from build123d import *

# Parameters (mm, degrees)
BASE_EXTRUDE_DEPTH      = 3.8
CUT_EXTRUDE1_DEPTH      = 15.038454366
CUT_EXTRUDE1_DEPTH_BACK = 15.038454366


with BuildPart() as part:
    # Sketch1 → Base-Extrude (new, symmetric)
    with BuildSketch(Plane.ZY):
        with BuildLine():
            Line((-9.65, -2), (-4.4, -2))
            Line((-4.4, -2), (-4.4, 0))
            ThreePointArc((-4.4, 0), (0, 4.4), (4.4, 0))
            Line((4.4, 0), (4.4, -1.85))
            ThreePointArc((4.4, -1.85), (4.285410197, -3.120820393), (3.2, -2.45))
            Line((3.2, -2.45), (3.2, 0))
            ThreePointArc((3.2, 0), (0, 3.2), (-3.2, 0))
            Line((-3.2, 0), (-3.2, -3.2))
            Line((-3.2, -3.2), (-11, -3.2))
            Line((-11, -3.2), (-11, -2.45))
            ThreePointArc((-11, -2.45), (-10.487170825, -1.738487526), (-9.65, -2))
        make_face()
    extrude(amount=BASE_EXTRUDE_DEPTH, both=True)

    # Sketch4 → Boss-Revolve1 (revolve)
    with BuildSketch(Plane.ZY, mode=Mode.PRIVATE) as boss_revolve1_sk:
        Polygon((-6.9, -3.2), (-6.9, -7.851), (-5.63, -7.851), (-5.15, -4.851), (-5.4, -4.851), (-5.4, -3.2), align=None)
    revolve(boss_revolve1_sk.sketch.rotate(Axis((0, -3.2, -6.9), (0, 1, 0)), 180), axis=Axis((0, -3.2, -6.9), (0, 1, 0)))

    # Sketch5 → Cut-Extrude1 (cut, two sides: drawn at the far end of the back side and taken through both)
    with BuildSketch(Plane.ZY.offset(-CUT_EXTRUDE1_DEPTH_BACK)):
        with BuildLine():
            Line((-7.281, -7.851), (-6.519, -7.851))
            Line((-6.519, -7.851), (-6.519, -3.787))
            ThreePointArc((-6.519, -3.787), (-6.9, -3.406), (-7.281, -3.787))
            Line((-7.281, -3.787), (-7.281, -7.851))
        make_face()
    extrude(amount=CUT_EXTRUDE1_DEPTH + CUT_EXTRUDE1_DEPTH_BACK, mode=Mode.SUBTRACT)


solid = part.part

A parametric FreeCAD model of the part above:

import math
import FreeCAD as App
import Part
import Sketcher
Q = App.Units.Quantity


def add_polygon(sketch, points):
    """Adds a closed chain of lines whose ends are joined by coincident constraints."""
    first, n = sketch.GeometryCount, len(points)
    for a, b in zip(points, points[1:] + points[:1]):
        sketch.addGeometry(Part.LineSegment(App.Vector(*a, 0), App.Vector(*b, 0)), False)
    for i in range(n):
        sketch.addConstraint(Sketcher.Constraint("Coincident", first + i, 2, first + (i + 1) % n, 1))

doc = App.newDocument("Part")
body = doc.addObject("PartDesign::Body", "Body")

# Sketch on YZ plane
sketch1 = body.newObject("Sketcher::SketchObject", "Sketch")
sketch1.AttachmentSupport = (doc.getObject("YZ_Plane"), [""])
sketch1.MapMode = "FlatFace"
sketch1.addGeometry([
    Part.LineSegment(App.Vector(-2, -4.4, 0), App.Vector(-2, -9.65, 0)),  # 0
    Part.ArcOfCircle(Part.Circle(App.Vector(-2.45, -10.25, 0), App.Vector(0, 0, 1), 0.75), math.radians(-90), math.radians(53.130102)),  # 1
    Part.LineSegment(App.Vector(-2.45, -11, 0), App.Vector(-3.2, -11, 0)),  # 2
    Part.LineSegment(App.Vector(-3.2, -11, 0), App.Vector(-3.2, -3.2, 0)),  # 3
    Part.LineSegment(App.Vector(-3.2, -3.2, 0), App.Vector(0, -3.2, 0)),  # 4
    Part.ArcOfCircle(Part.Circle(App.Vector(0, 0, 0), App.Vector(0, 0, 1), 3.2), math.radians(-90), math.radians(90)),  # 5
    Part.LineSegment(App.Vector(0, 3.2, 0), App.Vector(-2.45, 3.2, 0)),  # 6
    Part.ArcOfCircle(Part.Circle(App.Vector(-2.45, 3.95, 0), App.Vector(0, 0, 1), 0.75), math.radians(36.869898), math.radians(270)),  # 7
    Part.LineSegment(App.Vector(-1.85, 4.4, 0), App.Vector(0, 4.4, 0)),  # 8
    Part.ArcOfCircle(Part.Circle(App.Vector(0, 0, 0), App.Vector(0, 0, 1), 4.4), math.radians(-90), math.radians(90)),  # 9
    Part.LineSegment(App.Vector(0, -4.4, 0), App.Vector(-2, -4.4, 0)),  # 10
], False)
sketch1.addConstraint([
    Sketcher.Constraint("Coincident", 0, 2, 1, 2),
    Sketcher.Constraint("Tangent", 1, 1, 2, 1),
    Sketcher.Constraint("Coincident", 2, 2, 3, 1),
    Sketcher.Constraint("Coincident", 3, 2, 4, 1),
    Sketcher.Constraint("Tangent", 4, 2, 5, 1),
    Sketcher.Constraint("Tangent", 5, 2, 6, 1),
    Sketcher.Constraint("Tangent", 6, 2, 7, 2),
    Sketcher.Constraint("Coincident", 7, 1, 8, 1),
    Sketcher.Constraint("Tangent", 8, 2, 9, 2),
    Sketcher.Constraint("Tangent", 9, 1, 10, 1),
    Sketcher.Constraint("Coincident", 10, 2, 0, 1),
    Sketcher.Constraint("Vertical", 0),
    Sketcher.Constraint("Horizontal", 2),
    Sketcher.Constraint("Vertical", 3),
    Sketcher.Constraint("Horizontal", 4),
    Sketcher.Constraint("Horizontal", 6),
    Sketcher.Constraint("Horizontal", 8),
    Sketcher.Constraint("Horizontal", 10),
    Sketcher.Constraint("Coincident", 5, 3, -1, 1),
    Sketcher.Constraint("Coincident", 9, 3, -1, 1),
    Sketcher.Constraint("Equal", 1, 7),
    Sketcher.Constraint("Vertical", 1, 3, 7, 3),
    Sketcher.Constraint("Radius", 5, Q("3.2 mm")),
    Sketcher.Constraint("Radius", 9, Q("4.4 mm")),
    Sketcher.Constraint("DistanceX", 10, 2, 10, 1, Q("2 mm")),
    Sketcher.Constraint("Radius", 1, Q("0.75 mm")),
    Sketcher.Constraint("DistanceX", 4, 1, 4, 2, Q("3.2 mm")),
    Sketcher.Constraint("DistanceY", 3, 1, 3, 2, Q("7.8 mm")),
    Sketcher.Constraint("DistanceX", 2, 2, 2, 1, Q("0.75 mm")),
])
pad1 = body.newObject("PartDesign::Pad", "Pad")
pad1.Profile = sketch1
pad1.Length = 7.6
pad1.Midplane = True

# Sketch on YZ plane
sketch2 = body.newObject("Sketcher::SketchObject", "Sketch001")
sketch2.AttachmentSupport = (doc.getObject("YZ_Plane"), [""])
sketch2.MapMode = "FlatFace"
add_polygon(sketch2, [(-3.2, -6.9), (-7.851, -6.9), (-7.851, -5.63), (-4.851, -5.15), (-4.851, -5.4), (-3.2, -5.4)])  # lines 0-5
sketch2.addGeometry(Part.LineSegment(App.Vector(-7.851, -6.9, 0), App.Vector(-3.2, -6.9, 0)), True)  # axis
sketch2.addConstraint([
    Sketcher.Constraint("Horizontal", 0),
    Sketcher.Constraint("Vertical", 1),
    Sketcher.Constraint("Vertical", 3),
    Sketcher.Constraint("Horizontal", 4),
    Sketcher.Constraint("Vertical", 5),
    Sketcher.Constraint("Horizontal", 6),
    Sketcher.Constraint("Coincident", 6, 1, 0, 2),
    Sketcher.Constraint("Vertical", 4, 2, 6, 2),
    Sketcher.Constraint("DistanceY", 5, 2, 5, 1, Q("1.5 mm")),
    Sketcher.Constraint("DistanceX", 1, 2, 2, 2, Q("3 mm")),
    Sketcher.Constraint("DistanceY", 1, 1, 1, 2, Q("1.27 mm")),
    Sketcher.Constraint("DistanceY", 3, 2, 3, 1, Q("0.25 mm")),
    Sketcher.Constraint("DistanceY", 0, 2, -1, 1, Q("6.9 mm")),
    Sketcher.Constraint("DistanceX", 4, 2, -1, 1, Q("3.2 mm")),
    Sketcher.Constraint("DistanceX", 0, 2, 0, 1, Q("4.651 mm")),
])
revolution = body.newObject("PartDesign::Revolution", "Revolution")
revolution.Profile = sketch2
revolution.ReferenceAxis = (sketch2, ["Axis0"])
revolution.Angle = 360

# Sketch on YZ plane
sketch3 = body.newObject("Sketcher::SketchObject", "Sketch002")
sketch3.AttachmentSupport = (doc.getObject("YZ_Plane"), [""])
sketch3.MapMode = "FlatFace"
sketch3.addGeometry([
    Part.LineSegment(App.Vector(-7.851, -7.281, 0), App.Vector(-7.851, -6.519, 0)),
    Part.LineSegment(App.Vector(-7.851, -6.519, 0), App.Vector(-3.787, -6.519, 0)),
    Part.ArcOfCircle(Part.Circle(App.Vector(-3.787, -6.9, 0), App.Vector(0, 0, 1), 0.381), math.radians(-90), math.radians(90)),
    Part.LineSegment(App.Vector(-3.787, -7.281, 0), App.Vector(-7.851, -7.281, 0)),
], False)
sketch3.addConstraint([
    Sketcher.Constraint("Coincident", 0, 2, 1, 1),
    Sketcher.Constraint("Tangent", 1, 2, 2, 2),
    Sketcher.Constraint("Tangent", 2, 1, 3, 1),
    Sketcher.Constraint("Coincident", 3, 2, 0, 1),
    Sketcher.Constraint("Vertical", 0),
    Sketcher.Constraint("Horizontal", 1),
    Sketcher.Constraint("Horizontal", 3),
    Sketcher.Constraint("Radius", 2, Q("0.381 mm")),
    Sketcher.Constraint("DistanceY", 2, 3, -1, 1, Q("6.9 mm")),
    Sketcher.Constraint("DistanceX", 1, 1, 1, 2, Q("4.064 mm")),
    Sketcher.Constraint("DistanceX", 2, 3, -1, 1, Q("3.787 mm")),
])
pocket1 = body.newObject("PartDesign::Pocket", "Pocket")
pocket1.Profile = sketch3
pocket1.Type = "ThroughAll"
pocket1.Midplane = True

doc.recompute()
